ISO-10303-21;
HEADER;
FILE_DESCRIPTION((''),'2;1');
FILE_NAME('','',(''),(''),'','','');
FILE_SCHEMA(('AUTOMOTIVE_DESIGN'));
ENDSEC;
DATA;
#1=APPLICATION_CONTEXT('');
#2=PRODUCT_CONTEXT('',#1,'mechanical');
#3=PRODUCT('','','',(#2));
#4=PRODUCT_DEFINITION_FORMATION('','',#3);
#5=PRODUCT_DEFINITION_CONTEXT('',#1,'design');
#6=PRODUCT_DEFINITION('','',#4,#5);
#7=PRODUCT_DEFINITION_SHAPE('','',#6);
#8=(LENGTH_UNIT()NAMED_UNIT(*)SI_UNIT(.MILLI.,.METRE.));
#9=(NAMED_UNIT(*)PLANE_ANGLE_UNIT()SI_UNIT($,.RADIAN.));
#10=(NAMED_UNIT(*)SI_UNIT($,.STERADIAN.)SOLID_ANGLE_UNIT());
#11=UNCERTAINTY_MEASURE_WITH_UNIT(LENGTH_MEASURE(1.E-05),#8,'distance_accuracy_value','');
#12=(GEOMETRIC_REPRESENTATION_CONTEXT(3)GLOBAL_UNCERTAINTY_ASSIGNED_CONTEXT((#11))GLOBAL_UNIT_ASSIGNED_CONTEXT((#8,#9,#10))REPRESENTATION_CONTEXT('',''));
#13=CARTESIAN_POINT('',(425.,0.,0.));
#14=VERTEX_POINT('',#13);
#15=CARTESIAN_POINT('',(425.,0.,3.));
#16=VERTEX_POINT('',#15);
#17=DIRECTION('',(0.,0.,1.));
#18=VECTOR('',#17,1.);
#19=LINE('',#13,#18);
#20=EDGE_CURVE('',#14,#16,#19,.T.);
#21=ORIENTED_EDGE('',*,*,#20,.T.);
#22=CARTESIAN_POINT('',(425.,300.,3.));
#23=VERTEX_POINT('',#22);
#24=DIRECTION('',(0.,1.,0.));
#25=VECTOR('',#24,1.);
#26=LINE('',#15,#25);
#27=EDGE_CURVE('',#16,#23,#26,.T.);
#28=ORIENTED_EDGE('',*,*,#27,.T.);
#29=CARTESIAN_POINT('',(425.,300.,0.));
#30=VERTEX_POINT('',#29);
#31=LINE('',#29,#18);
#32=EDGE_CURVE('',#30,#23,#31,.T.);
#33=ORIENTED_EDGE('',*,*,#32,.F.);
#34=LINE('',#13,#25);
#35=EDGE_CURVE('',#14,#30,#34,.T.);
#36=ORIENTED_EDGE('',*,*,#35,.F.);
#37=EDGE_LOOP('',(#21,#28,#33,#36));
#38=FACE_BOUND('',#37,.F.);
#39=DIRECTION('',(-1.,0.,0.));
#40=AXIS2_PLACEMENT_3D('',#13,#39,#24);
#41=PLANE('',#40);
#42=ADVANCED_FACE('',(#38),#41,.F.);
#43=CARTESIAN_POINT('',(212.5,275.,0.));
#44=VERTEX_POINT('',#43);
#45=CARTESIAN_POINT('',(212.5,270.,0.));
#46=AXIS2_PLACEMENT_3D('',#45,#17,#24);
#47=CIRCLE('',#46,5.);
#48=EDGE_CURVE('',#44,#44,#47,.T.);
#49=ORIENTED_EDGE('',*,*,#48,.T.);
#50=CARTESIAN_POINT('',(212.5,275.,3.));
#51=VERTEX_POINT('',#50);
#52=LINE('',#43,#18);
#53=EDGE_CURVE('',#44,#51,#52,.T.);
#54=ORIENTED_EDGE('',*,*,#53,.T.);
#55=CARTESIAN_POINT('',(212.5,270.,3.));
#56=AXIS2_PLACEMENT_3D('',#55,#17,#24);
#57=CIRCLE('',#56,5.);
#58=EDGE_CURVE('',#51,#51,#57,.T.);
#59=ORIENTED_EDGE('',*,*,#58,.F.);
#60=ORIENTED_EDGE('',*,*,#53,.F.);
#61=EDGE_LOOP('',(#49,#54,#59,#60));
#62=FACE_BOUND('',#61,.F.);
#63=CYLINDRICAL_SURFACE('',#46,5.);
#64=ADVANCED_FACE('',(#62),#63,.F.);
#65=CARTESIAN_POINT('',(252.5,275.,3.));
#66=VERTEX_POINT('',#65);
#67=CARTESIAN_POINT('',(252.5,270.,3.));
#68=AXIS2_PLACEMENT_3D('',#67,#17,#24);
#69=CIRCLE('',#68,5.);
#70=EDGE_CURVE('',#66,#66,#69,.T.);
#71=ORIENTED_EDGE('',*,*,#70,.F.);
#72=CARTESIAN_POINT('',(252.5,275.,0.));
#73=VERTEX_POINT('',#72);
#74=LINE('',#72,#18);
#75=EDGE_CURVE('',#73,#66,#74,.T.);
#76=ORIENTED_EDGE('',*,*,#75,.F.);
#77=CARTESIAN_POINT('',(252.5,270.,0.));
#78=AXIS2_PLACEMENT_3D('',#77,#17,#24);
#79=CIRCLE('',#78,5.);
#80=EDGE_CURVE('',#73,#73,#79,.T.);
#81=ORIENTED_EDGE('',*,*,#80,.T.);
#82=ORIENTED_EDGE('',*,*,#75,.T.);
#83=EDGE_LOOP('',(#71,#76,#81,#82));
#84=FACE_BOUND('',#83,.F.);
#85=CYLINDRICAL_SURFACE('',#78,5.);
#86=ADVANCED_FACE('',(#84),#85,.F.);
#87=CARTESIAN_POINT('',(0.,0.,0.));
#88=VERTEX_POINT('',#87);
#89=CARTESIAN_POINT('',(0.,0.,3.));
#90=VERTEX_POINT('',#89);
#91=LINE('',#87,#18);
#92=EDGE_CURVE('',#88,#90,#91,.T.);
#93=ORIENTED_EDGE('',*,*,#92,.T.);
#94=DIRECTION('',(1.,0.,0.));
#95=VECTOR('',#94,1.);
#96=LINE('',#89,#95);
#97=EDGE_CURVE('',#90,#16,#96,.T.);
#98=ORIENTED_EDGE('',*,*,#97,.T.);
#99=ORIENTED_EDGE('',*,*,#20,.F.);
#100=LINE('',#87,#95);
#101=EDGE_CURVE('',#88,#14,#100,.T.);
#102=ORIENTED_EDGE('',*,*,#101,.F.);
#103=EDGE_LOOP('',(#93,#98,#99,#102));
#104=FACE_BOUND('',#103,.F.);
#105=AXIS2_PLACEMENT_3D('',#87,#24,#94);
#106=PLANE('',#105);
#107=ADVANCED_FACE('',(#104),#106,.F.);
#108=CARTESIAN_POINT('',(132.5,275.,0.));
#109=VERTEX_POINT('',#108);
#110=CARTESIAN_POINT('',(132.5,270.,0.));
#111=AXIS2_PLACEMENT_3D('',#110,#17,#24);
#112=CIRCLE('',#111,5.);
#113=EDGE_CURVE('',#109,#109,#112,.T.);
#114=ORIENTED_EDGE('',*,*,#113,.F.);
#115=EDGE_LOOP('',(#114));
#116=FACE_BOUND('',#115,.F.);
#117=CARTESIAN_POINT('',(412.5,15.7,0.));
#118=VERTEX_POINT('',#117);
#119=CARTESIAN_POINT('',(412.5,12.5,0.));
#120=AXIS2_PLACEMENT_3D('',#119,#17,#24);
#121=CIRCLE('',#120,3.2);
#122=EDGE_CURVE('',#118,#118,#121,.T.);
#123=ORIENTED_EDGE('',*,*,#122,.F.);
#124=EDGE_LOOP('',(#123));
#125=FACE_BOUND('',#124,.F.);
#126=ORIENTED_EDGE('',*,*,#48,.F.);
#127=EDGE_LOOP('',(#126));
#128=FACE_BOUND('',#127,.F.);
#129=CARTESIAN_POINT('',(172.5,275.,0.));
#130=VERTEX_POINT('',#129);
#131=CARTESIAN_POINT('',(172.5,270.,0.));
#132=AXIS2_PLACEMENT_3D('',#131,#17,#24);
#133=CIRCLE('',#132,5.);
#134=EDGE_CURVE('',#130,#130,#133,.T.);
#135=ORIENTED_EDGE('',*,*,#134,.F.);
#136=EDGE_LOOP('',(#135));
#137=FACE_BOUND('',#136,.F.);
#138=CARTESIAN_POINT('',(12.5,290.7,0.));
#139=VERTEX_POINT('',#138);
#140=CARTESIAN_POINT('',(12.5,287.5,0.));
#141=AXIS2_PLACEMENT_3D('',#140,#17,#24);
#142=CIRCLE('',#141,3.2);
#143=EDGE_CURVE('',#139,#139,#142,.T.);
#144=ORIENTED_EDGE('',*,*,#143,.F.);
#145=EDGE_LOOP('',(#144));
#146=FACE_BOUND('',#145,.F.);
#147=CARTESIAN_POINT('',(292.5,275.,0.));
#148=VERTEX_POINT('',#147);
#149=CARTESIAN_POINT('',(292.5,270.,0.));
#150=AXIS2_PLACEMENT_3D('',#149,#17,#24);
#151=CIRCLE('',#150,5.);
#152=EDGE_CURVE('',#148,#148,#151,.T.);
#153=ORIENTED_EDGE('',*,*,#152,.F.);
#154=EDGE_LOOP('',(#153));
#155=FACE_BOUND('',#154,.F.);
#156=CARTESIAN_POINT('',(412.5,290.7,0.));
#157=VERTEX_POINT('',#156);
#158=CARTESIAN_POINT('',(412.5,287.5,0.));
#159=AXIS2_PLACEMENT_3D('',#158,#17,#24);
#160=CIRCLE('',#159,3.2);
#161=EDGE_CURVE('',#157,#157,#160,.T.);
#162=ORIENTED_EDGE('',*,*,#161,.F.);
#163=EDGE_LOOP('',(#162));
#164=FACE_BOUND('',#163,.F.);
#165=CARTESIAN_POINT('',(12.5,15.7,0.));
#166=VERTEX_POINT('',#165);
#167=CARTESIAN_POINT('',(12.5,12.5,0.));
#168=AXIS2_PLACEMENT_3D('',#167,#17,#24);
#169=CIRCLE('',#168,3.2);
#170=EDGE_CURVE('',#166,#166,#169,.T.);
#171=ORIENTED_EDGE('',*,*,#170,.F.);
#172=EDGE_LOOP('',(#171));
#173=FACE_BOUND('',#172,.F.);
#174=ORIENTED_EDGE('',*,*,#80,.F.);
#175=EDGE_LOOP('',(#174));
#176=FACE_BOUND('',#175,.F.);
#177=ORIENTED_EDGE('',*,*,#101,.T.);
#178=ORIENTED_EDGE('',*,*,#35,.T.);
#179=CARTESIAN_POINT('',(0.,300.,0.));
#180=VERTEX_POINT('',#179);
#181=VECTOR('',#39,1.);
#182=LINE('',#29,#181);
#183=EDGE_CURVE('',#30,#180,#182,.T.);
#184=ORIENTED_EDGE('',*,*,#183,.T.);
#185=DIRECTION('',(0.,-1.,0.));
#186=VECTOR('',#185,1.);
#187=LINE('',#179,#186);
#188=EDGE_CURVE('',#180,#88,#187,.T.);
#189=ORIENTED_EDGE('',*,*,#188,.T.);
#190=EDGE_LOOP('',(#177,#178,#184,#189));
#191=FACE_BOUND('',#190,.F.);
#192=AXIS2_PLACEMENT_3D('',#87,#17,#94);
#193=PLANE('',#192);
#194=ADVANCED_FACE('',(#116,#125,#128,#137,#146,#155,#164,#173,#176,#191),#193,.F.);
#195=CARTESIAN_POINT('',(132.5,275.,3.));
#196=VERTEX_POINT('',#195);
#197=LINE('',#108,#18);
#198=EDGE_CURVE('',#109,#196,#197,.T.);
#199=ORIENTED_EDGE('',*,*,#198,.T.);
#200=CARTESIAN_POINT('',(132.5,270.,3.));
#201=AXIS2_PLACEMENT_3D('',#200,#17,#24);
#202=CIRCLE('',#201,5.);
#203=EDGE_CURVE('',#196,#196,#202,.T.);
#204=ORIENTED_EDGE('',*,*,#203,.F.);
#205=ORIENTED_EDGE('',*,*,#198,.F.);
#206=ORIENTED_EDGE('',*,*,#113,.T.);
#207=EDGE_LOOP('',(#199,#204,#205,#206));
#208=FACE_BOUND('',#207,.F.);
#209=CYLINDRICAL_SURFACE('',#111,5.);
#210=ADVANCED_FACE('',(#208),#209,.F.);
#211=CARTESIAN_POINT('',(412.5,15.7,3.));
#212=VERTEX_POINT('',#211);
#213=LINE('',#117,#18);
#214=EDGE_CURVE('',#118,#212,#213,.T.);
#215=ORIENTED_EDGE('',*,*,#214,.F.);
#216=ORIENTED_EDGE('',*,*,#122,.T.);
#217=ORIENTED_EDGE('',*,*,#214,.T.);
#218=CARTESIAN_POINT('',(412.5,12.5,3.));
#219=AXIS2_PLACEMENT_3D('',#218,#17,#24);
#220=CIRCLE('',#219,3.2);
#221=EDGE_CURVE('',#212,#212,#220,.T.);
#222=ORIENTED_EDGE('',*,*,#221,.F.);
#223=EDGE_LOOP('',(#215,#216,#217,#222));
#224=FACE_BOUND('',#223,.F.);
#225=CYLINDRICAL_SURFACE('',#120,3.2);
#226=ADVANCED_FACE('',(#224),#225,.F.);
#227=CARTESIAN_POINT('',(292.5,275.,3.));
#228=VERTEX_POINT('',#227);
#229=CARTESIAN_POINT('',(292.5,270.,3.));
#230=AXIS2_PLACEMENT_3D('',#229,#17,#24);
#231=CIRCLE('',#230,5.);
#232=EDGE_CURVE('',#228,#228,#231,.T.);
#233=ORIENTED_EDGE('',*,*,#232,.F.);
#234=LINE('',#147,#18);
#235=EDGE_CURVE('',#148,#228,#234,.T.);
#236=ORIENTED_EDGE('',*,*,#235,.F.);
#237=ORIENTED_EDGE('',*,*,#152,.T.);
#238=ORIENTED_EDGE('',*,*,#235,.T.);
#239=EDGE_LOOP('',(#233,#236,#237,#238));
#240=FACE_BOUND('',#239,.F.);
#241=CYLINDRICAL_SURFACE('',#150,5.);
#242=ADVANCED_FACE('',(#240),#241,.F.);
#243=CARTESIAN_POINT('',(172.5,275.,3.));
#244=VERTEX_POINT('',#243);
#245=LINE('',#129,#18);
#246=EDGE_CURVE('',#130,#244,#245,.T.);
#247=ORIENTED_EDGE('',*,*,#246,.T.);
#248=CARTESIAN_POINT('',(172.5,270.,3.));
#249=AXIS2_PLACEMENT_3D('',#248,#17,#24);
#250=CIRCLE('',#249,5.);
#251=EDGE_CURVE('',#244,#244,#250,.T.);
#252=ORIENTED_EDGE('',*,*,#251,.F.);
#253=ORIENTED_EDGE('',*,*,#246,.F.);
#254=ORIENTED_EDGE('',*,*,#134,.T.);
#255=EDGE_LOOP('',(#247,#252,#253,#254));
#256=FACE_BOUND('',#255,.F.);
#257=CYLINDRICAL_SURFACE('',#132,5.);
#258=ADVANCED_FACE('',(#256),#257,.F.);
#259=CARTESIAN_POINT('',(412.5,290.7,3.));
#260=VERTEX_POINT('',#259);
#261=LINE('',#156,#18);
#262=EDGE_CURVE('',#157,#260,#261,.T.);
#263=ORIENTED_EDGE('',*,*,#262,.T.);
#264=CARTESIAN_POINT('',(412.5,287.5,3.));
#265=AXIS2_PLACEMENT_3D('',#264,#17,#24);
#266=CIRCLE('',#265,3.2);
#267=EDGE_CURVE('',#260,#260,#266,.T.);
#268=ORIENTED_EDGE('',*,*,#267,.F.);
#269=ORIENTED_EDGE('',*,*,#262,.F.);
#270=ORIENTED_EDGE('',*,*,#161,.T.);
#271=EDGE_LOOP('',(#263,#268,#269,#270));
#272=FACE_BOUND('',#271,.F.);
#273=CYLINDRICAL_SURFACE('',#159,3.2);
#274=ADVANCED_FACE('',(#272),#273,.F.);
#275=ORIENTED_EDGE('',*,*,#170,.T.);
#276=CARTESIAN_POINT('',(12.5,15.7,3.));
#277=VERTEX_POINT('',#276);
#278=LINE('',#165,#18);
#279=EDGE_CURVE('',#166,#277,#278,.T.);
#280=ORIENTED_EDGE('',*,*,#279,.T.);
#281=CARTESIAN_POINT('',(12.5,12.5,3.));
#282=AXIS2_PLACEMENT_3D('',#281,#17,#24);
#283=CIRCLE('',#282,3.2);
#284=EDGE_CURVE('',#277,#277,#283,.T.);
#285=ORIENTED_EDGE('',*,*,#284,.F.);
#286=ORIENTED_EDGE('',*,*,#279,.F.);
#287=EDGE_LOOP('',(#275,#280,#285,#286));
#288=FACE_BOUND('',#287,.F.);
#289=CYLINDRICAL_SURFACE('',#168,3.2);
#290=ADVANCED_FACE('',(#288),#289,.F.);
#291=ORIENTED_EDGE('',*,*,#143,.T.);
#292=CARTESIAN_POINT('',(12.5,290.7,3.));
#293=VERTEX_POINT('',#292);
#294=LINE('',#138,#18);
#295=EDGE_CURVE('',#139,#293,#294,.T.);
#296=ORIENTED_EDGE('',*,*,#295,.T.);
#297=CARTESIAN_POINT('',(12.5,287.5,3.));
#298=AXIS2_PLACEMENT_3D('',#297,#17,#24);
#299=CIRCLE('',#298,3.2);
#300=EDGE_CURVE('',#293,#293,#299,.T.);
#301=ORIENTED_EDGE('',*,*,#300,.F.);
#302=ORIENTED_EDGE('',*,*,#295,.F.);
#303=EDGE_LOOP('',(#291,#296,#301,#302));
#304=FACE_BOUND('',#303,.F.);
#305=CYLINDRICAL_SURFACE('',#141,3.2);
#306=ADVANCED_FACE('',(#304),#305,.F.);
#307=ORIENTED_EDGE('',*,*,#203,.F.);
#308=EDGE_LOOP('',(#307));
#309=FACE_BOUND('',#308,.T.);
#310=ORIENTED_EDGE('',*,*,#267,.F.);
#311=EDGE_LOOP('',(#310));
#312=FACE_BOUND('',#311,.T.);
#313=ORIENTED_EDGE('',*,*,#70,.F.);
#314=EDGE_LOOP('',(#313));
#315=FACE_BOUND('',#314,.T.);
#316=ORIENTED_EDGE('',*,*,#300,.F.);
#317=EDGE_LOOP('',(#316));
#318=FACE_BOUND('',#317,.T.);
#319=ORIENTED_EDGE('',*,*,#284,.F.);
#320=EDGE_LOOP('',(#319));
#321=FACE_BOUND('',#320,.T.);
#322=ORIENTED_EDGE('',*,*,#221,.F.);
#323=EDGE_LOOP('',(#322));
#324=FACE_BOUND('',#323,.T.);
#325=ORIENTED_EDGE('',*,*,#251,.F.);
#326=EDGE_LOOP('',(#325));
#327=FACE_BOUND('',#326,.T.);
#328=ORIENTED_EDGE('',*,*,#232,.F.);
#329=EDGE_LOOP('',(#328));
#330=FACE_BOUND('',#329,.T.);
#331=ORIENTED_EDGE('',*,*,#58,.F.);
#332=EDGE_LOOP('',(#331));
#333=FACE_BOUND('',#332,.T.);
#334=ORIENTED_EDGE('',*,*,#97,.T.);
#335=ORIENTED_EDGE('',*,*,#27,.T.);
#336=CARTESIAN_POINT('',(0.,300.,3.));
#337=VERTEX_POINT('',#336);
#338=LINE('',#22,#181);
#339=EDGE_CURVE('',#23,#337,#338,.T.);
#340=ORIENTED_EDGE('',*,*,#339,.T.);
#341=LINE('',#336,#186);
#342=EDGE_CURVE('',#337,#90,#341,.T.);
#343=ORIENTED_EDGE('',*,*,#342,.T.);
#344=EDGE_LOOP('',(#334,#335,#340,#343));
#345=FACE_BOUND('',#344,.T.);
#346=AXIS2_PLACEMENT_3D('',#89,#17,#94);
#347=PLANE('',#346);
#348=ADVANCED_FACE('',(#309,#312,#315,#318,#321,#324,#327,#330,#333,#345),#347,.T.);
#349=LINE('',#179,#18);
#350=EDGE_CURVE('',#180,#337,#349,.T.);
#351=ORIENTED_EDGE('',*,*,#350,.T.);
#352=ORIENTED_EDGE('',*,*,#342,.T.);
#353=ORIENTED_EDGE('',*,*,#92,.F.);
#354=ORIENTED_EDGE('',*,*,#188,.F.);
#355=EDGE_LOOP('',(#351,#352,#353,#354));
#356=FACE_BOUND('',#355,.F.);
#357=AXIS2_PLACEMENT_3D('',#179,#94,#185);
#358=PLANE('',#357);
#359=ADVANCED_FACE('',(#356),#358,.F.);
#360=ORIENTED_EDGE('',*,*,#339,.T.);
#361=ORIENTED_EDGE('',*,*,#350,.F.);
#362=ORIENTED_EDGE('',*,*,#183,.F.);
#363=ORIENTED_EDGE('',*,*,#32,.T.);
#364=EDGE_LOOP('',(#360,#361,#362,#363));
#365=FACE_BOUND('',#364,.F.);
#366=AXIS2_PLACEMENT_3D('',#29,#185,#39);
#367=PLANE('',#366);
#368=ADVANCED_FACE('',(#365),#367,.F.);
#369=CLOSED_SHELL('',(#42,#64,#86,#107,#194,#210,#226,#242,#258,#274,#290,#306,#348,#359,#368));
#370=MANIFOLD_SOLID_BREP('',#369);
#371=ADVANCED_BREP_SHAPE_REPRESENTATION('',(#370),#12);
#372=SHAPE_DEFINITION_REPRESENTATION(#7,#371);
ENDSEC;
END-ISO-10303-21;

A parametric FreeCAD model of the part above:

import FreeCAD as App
import Part
import Sketcher

V = App.Vector
Q = App.Units.Quantity

doc = App.newDocument("Part")
body = doc.addObject("PartDesign::Body", "Body")

# Sketch on XY plane
sketch1 = doc.addObject("Sketcher::SketchObject", "Sketch")
body.addObject(sketch1)
sketch1.AttachmentSupport = (doc.XY_Plane, [""])
sketch1.MapMode = "FlatFace"
sketch1.addGeometry(Part.LineSegment(V(0, 300, 0), V(0, 0, 0)), False)
sketch1.addGeometry(Part.LineSegment(V(0, 0, 0), V(425, 0, 0)), False)
sketch1.addGeometry(Part.LineSegment(V(425, 0, 0), V(425, 300, 0)), False)
sketch1.addGeometry(Part.LineSegment(V(425, 300, 0), V(0, 300, 0)), False)
sketch1.addConstraint(Sketcher.Constraint("Coincident", 0, 2, 1, 1))
sketch1.addConstraint(Sketcher.Constraint("Coincident", 1, 2, 2, 1))
sketch1.addConstraint(Sketcher.Constraint("Coincident", 2, 2, 3, 1))
sketch1.addConstraint(Sketcher.Constraint("Coincident", 3, 2, 0, 1))
sketch1.addConstraint(Sketcher.Constraint("Vertical", 0))
sketch1.addConstraint(Sketcher.Constraint("Horizontal", 1))
sketch1.addConstraint(Sketcher.Constraint("Vertical", 2))
sketch1.addConstraint(Sketcher.Constraint("Horizontal", 3))
sketch1.addConstraint(Sketcher.Constraint("Coincident", 0, 2, -1, 1))
sketch1.addConstraint(Sketcher.Constraint("DistanceX", 1, 1, 1, 2, Q("425 mm")))
sketch1.addConstraint(Sketcher.Constraint("DistanceY", 0, 2, 0, 1, Q("300 mm")))
pad1 = doc.addObject("PartDesign::Pad", "Pad")
body.addObject(pad1)
pad1.Profile = sketch1
pad1.Length = 3

# Sketch on XY plane
sketch2 = doc.addObject("Sketcher::SketchObject", "Sketch001")
body.addObject(sketch2)
sketch2.AttachmentSupport = (doc.XY_Plane, [""])
sketch2.MapMode = "FlatFace"
sketch2.addGeometry(Part.Circle(V(12.5, 287.5, 0), V(0, 0, 1), 3.2), False)
sketch2.addGeometry(Part.Circle(V(412.5, 287.5, 0), V(0, 0, 1), 3.2), False)
sketch2.addGeometry(Part.Circle(V(12.5, 12.5, 0), V(0, 0, 1), 3.2), False)
sketch2.addGeometry(Part.Circle(V(412.5, 12.5, 0), V(0, 0, 1), 3.2), False)
sketch2.addConstraint(Sketcher.Constraint("Equal", 0, 1))
sketch2.addConstraint(Sketcher.Constraint("Equal", 1, 2))
sketch2.addConstraint(Sketcher.Constraint("Equal", 2, 3))
sketch2.addConstraint(Sketcher.Constraint("Horizontal", 0, 3, 1, 3))
sketch2.addConstraint(Sketcher.Constraint("Horizontal", 2, 3, 3, 3))
sketch2.addConstraint(Sketcher.Constraint("Vertical", 0, 3, 2, 3))
sketch2.addConstraint(Sketcher.Constraint("Vertical", 1, 3, 3, 3))
sketch2.addConstraint(Sketcher.Constraint("Diameter", 0, Q("6.4 mm")))
sketch2.addConstraint(Sketcher.Constraint("DistanceX", 0, 3, 1, 3, Q("400 mm")))
sketch2.addConstraint(Sketcher.Constraint("DistanceY", 2, 3, 0, 3, Q("275 mm")))
sketch2.addConstraint(Sketcher.Constraint("DistanceX", -1, 1, 0, 3, Q("12.5 mm")))
sketch2.addConstraint(Sketcher.Constraint("DistanceY", -1, 1, 0, 3, Q("287.5 mm")))
doc.recompute()
hole = doc.addObject("PartDesign::Hole", "Hole")
body.addObject(hole)
hole.Profile = sketch2
hole.ThreadType = "None"
hole.Diameter = 6.4
hole.DepthType = "ThroughAll"
hole.Reversed = True

# Sketch on XY plane
sketch3 = doc.addObject("Sketcher::SketchObject", "Sketch002")
body.addObject(sketch3)
sketch3.AttachmentSupport = (doc.XY_Plane, [""])
sketch3.MapMode = "FlatFace"
sketch3.addGeometry(Part.Circle(V(132, 270, 0), V(0, 0, 1), 5), False)
sketch3.addGeometry(Part.Circle(V(172, 270, 0), V(0, 0, 1), 5), False)
sketch3.addGeometry(Part.Circle(V(212, 270, 0), V(0, 0, 1), 5), False)
sketch3.addGeometry(Part.Circle(V(252, 270, 0), V(0, 0, 1), 5), False)
sketch3.addGeometry(Part.Circle(V(292, 270, 0), V(0, 0, 1), 5), False)
sketch3.addConstraint(Sketcher.Constraint("Equal", 0, 1))
sketch3.addConstraint(Sketcher.Constraint("Equal", 1, 2))
sketch3.addConstraint(Sketcher.Constraint("Equal", 2, 3))
sketch3.addConstraint(Sketcher.Constraint("Equal", 3, 4))
sketch3.addConstraint(Sketcher.Constraint("Horizontal", 0, 3, 1, 3))
sketch3.addConstraint(Sketcher.Constraint("Horizontal", 1, 3, 2, 3))
sketch3.addConstraint(Sketcher.Constraint("Horizontal", 2, 3, 3, 3))
sketch3.addConstraint(Sketcher.Constraint("Horizontal", 3, 3, 4, 3))
sketch3.addConstraint(Sketcher.Constraint("Diameter", 0, Q("10 mm")))
sketch3.addConstraint(Sketcher.Constraint("DistanceY", -1, 1, 0, 3, Q("270 mm")))
sketch3.addConstraint(Sketcher.Constraint("DistanceX", 0, 3, 1, 3, Q("40 mm")))
sketch3.addConstraint(Sketcher.Constraint("DistanceX", 1, 3, 2, 3, Q("40 mm")))
sketch3.addConstraint(Sketcher.Constraint("DistanceX", 2, 3, 3, 3, Q("40 mm")))
sketch3.addConstraint(Sketcher.Constraint("DistanceX", 3, 3, 4, 3, Q("40 mm")))
sketch3.addConstraint(Sketcher.Constraint("DistanceX", -1, 1, 0, 3, Q("132.5 mm")))
doc.recompute()
hole2 = doc.addObject("PartDesign::Hole", "Hole001")
body.addObject(hole2)
hole2.Profile = sketch3
hole2.ThreadType = "None"
hole2.Diameter = 10
hole2.DepthType = "ThroughAll"
hole2.Reversed = True

doc.recompute()
